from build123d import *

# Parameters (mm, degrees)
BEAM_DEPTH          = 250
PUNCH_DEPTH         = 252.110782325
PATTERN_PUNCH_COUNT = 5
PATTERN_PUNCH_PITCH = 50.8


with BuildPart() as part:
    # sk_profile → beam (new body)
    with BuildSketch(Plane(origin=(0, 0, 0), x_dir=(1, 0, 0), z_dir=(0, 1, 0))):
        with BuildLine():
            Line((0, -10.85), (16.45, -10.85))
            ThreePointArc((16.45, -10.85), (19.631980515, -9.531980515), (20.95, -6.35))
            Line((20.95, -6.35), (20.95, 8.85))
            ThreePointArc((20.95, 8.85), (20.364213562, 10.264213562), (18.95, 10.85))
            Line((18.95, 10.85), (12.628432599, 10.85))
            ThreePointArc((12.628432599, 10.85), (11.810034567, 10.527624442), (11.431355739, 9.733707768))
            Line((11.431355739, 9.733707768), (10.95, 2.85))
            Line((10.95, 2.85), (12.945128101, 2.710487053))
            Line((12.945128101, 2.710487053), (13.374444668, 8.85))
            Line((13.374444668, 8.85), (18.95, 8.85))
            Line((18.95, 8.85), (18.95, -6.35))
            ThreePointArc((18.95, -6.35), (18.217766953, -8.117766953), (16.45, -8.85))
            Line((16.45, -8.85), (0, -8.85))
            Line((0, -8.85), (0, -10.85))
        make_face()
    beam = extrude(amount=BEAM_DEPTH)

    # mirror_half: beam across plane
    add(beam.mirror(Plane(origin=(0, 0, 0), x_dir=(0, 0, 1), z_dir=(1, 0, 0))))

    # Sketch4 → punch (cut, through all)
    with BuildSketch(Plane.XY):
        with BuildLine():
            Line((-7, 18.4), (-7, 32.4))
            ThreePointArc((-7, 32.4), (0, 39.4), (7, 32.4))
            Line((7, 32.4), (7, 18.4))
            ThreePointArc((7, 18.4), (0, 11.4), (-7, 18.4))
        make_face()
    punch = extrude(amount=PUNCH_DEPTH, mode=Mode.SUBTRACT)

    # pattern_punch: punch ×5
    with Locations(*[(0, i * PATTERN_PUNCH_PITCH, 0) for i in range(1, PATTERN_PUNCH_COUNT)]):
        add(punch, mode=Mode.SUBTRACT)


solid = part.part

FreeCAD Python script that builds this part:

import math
import FreeCAD as App
import Part
import Sketcher
Q = App.Units.Quantity

doc = App.newDocument("Part")
body = doc.addObject("PartDesign::Body", "Body")

# Sketch on XZ plane
sketch1 = body.newObject("Sketcher::SketchObject", "Sketch")
sketch1.AttachmentSupport = (doc.getObject("XZ_Plane"), [""])
sketch1.MapMode = "FlatFace"
sketch1.addGeometry(Part.LineSegment(App.Vector(0, 10.85, 0), App.Vector(16.45, 10.85, 0)), False)
sketch1.addGeometry(Part.ArcOfCircle(Part.Circle(App.Vector(16.45, 6.35, 0), App.Vector(0, 0, 1), 4.5), math.radians(0), math.radians(90)), False)
sketch1.addGeometry(Part.LineSegment(App.Vector(20.95, 6.35, 0), App.Vector(20.95, -8.85, 0)), False)
sketch1.addGeometry(Part.ArcOfCircle(Part.Circle(App.Vector(18.95, -8.85, 0), App.Vector(0, 0, 1), 2), math.radians(-90), math.radians(0)), False)
sketch1.addGeometry(Part.LineSegment(App.Vector(18.95, -10.85, 0), App.Vector(12.628433, -10.85, 0)), False)
sketch1.addGeometry(Part.ArcOfCircle(Part.Circle(App.Vector(12.628433, -9.65, 0), App.Vector(0, 0, 1), 1.2), math.radians(-176), math.radians(-90)), False)
sketch1.addGeometry(Part.LineSegment(App.Vector(11.431356, -9.733708, 0), App.Vector(10.95, -2.85, 0)), False)
sketch1.addGeometry(Part.LineSegment(App.Vector(10.95, -2.85, 0), App.Vector(12.945128, -2.710487, 0)), False)
sketch1.addGeometry(Part.LineSegment(App.Vector(12.945128, -2.710487, 0), App.Vector(13.374445, -8.85, 0)), False)
sketch1.addGeometry(Part.LineSegment(App.Vector(13.374445, -8.85, 0), App.Vector(18.95, -8.85, 0)), False)
sketch1.addGeometry(Part.LineSegment(App.Vector(18.95, -8.85, 0), App.Vector(18.95, 6.35, 0)), False)
sketch1.addGeometry(Part.ArcOfCircle(Part.Circle(App.Vector(16.45, 6.35, 0), App.Vector(0, 0, 1), 2.5), math.radians(0), math.radians(90)), False)
sketch1.addGeometry(Part.LineSegment(App.Vector(16.45, 8.85, 0), App.Vector(0, 8.85, 0)), False)
sketch1.addGeometry(Part.LineSegment(App.Vector(0, 8.85, 0), App.Vector(0, 10.85, 0)), False)
sketch1.addConstraint(Sketcher.Constraint("Tangent", 0, 2, 1, 2))
sketch1.addConstraint(Sketcher.Constraint("Tangent", 1, 1, 2, 1))
sketch1.addConstraint(Sketcher.Constraint("Tangent", 2, 2, 3, 2))
sketch1.addConstraint(Sketcher.Constraint("Tangent", 3, 1, 4, 1))
sketch1.addConstraint(Sketcher.Constraint("Tangent", 4, 2, 5, 2))
sketch1.addConstraint(Sketcher.Constraint("Tangent", 5, 1, 6, 1))
sketch1.addConstraint(Sketcher.Constraint("Coincident", 6, 2, 7, 1))
sketch1.addConstraint(Sketcher.Constraint("Coincident", 7, 2, 8, 1))
sketch1.addConstraint(Sketcher.Constraint("Coincident", 8, 2, 9, 1))
sketch1.addConstraint(Sketcher.Constraint("Coincident", 9, 2, 10, 1))
sketch1.addConstraint(Sketcher.Constraint("Tangent", 10, 2, 11, 1))
sketch1.addConstraint(Sketcher.Constraint("Tangent", 11, 2, 12, 1))
sketch1.addConstraint(Sketcher.Constraint("Coincident", 12, 2, 13, 1))
sketch1.addConstraint(Sketcher.Constraint("Coincident", 13, 2, 0, 1))
sketch1.addConstraint(Sketcher.Constraint("Horizontal", 0))
sketch1.addConstraint(Sketcher.Constraint("Vertical", 2))
sketch1.addConstraint(Sketcher.Constraint("Horizontal", 4))
sketch1.addConstraint(Sketcher.Constraint("Horizontal", 9))
sketch1.addConstraint(Sketcher.Constraint("Vertical", 10))
sketch1.addConstraint(Sketcher.Constraint("Horizontal", 12))
sketch1.addConstraint(Sketcher.Constraint("Vertical", 13))
sketch1.addConstraint(Sketcher.Constraint("Coincident", 11, 3, 1, 3))
sketch1.addConstraint(Sketcher.Constraint("Coincident", 9, 2, 3, 3))
sketch1.addConstraint(Sketcher.Constraint("PointOnObject", 12, 2, -2))
sketch1.addConstraint(Sketcher.Constraint("Perpendicular", 6, 7))
sketch1.addConstraint(Sketcher.Constraint("Perpendicular", 7, 8))
sketch1.addConstraint(Sketcher.Constraint("Radius", 3, 2.0))
sketch1.addConstraint(Sketcher.Constraint("Radius", 1, 4.5))
sketch1.addConstraint(Sketcher.Constraint("Radius", 5, 1.2))
sketch1.addConstraint(Sketcher.Constraint("Angle", 6, Q("94 deg")))
sketch1.addConstraint(Sketcher.Constraint("Distance", 7, 2.0))
sketch1.addConstraint(Sketcher.Constraint("DistanceY", 2, 2, 2, 1, 15.2))
sketch1.addConstraint(Sketcher.Constraint("DistanceY", 4, 2, 6, 2, 8.0))
sketch1.addConstraint(Sketcher.Constraint("DistanceX", 6, 2, 3, 3, 8.0))
sketch1.addConstraint(Sketcher.Constraint("DistanceX", 0, 1, 0, 2, 16.45))
sketch1.addConstraint(Sketcher.Constraint("DistanceY", -1, 1, 1, 3, 6.35))
pad1 = body.newObject("PartDesign::Pad", "Pad")
pad1.Profile = sketch1
pad1.Length = 250
pad1.Reversed = True
doc.recompute()

mirrored = body.newObject("PartDesign::Mirrored", "Mirrored")
mirrored.Originals = [pad1]
mirrored.MirrorPlane = (doc.getObject("YZ_Plane"), [""])
body.Tip = mirrored

# Sketch on XY plane
sketch2 = body.newObject("Sketcher::SketchObject", "Sketch001")
sketch2.AttachmentSupport = (doc.getObject("XY_Plane"), [""])
sketch2.MapMode = "FlatFace"
sketch2.addGeometry(Part.LineSegment(App.Vector(-7, 32.4, 0), App.Vector(-7, 18.4, 0)), False)
sketch2.addGeometry(Part.ArcOfCircle(Part.Circle(App.Vector(0, 18.4, 0), App.Vector(0, 0, 1), 7), math.radians(180), math.radians(360)), False)
sketch2.addGeometry(Part.LineSegment(App.Vector(7, 18.4, 0), App.Vector(7, 32.4, 0)), False)
sketch2.addGeometry(Part.ArcOfCircle(Part.Circle(App.Vector(0, 32.4, 0), App.Vector(0, 0, 1), 7), math.radians(0), math.radians(180)), False)
sketch2.addConstraint(Sketcher.Constraint("Tangent", 0, 2, 1, 1))
sketch2.addConstraint(Sketcher.Constraint("Tangent", 1, 2, 2, 1))
sketch2.addConstraint(Sketcher.Constraint("Tangent", 2, 2, 3, 1))
sketch2.addConstraint(Sketcher.Constraint("Tangent", 3, 2, 0, 1))
sketch2.addConstraint(Sketcher.Constraint("Vertical", 0))
sketch2.addConstraint(Sketcher.Constraint("Vertical", 2))
sketch2.addConstraint(Sketcher.Constraint("PointOnObject", 1, 3, -2))
sketch2.addConstraint(Sketcher.Constraint("Radius", 1, 7.0))
sketch2.addConstraint(Sketcher.Constraint("DistanceY", 0, 2, 0, 1, 14.0))
sketch2.addConstraint(Sketcher.Constraint("DistanceY", -1, 1, 1, 3, 18.4))
pocket1 = body.newObject("PartDesign::Pocket", "Pocket")
pocket1.Profile = sketch2
pocket1.Type = "ThroughAll"
pocket1.Reversed = True
doc.recompute()

linearpattern = body.newObject("PartDesign::LinearPattern", "LinearPattern")
linearpattern.Originals = [pocket1]
linearpattern.Direction = (doc.getObject("Y_Axis"), [""])
linearpattern.Mode = "offset"
linearpattern.Offset = 50.8
linearpattern.Occurrences = 5
body.Tip = linearpattern

doc.recompute()
